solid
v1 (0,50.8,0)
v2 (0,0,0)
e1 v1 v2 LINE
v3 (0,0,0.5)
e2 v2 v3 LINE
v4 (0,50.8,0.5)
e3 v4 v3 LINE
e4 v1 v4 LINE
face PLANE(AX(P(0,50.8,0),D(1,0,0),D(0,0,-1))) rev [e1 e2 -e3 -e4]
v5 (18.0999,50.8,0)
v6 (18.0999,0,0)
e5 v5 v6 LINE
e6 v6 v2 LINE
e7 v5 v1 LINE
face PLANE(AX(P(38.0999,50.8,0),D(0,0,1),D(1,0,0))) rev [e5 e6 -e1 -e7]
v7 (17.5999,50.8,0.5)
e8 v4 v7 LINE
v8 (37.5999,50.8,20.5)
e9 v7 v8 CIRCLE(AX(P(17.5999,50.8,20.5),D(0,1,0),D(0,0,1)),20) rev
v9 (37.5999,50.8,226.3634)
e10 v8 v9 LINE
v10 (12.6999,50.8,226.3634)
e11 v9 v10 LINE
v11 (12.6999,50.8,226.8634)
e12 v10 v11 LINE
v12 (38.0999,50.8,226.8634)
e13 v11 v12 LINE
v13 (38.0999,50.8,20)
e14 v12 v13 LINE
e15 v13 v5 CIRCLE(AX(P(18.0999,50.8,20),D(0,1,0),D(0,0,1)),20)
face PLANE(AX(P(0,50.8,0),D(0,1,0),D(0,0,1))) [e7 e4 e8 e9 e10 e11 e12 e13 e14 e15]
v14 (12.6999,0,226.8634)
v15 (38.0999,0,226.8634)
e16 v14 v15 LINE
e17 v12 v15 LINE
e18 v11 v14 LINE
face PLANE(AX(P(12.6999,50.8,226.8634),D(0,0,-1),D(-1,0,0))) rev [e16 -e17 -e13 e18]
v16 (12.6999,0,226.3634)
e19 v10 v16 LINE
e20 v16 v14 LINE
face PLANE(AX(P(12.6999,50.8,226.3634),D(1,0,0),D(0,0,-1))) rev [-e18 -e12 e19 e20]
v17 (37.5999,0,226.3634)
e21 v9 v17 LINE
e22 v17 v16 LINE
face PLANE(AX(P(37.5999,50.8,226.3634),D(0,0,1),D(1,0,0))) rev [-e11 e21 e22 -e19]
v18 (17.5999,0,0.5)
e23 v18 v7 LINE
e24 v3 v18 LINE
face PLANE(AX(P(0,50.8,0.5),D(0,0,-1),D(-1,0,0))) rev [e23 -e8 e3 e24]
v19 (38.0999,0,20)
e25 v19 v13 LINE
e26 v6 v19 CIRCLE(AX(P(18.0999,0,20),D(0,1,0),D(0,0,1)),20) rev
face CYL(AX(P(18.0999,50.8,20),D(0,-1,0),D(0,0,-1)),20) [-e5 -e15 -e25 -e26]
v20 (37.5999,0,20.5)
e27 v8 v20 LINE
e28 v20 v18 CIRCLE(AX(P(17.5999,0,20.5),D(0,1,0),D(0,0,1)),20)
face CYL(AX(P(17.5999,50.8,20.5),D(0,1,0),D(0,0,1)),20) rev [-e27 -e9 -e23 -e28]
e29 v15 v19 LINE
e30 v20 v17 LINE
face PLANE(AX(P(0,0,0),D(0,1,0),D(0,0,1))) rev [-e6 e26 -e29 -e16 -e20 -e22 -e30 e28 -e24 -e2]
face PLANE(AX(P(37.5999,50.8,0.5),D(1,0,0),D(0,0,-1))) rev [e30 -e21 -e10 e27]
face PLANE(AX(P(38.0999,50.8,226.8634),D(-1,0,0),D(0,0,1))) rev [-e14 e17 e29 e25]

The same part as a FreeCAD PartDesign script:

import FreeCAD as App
import Part
import Sketcher
Q = App.Units.Quantity


def edges_at(feature, points):
    """Names of the edges that pass closest to the given points."""
    edges = feature.Shape.Edges
    near = lambda p: min(range(len(edges)), key=lambda i: edges[i].distToShape(Part.Vertex(*p))[0])
    return sorted({f"Edge{near(p) + 1}" for p in points})


def add_polygon(sketch, points):
    """Adds a closed chain of lines whose ends are joined by coincident constraints."""
    first, n = sketch.GeometryCount, len(points)
    for a, b in zip(points, points[1:] + points[:1]):
        sketch.addGeometry(Part.LineSegment(App.Vector(*a, 0), App.Vector(*b, 0)), False)
    for i in range(n):
        sketch.addConstraint(Sketcher.Constraint("Coincident", first + i, 2, first + (i + 1) % n, 1))

doc = App.newDocument("Part")
params = doc.addObject("Spreadsheet::Sheet", "Params")
for row, (alias, value) in enumerate([
    ("sketch1_width", "24.9 mm"),
    ("sketch1_width2", "25.4 mm"),
    ("sketch1_height", "0.5 mm"),
    ("pad1_length", "50.8 mm"),
    ("fillet_radius", "20 mm"),
], start=1):
    params.set(f"A{row}", alias)
    params.set(f"B{row}", "=" + value)
    params.setAlias(f"B{row}", alias)

body = doc.addObject("PartDesign::Body", "Body")

# Sketch on XZ plane
sketch1 = body.newObject("Sketcher::SketchObject", "Sketch")
sketch1.AttachmentSupport = (doc.getObject("XZ_Plane"), [""])
sketch1.MapMode = "FlatFace"
add_polygon(sketch1, [(0, 0), (0, 0.5), (37.5999, 0.5), (37.5999, 226.3634), (12.6999, 226.3634), (12.6999, 226.8634), (38.0999, 226.8634), (38.0999, 0)])  # lines 0-7
sketch1.addConstraint([
    Sketcher.Constraint("Vertical", 0),
    Sketcher.Constraint("Horizontal", 1),
    Sketcher.Constraint("Vertical", 2),
    Sketcher.Constraint("Horizontal", 3),
    Sketcher.Constraint("Vertical", 4),
    Sketcher.Constraint("Horizontal", 5),
    Sketcher.Constraint("Vertical", 6),
    Sketcher.Constraint("Horizontal", 7),
    Sketcher.Constraint("Coincident", 7, 2, -1, 1),
    Sketcher.Constraint("Equal", 0, 4),
    Sketcher.Constraint("DistanceX", 3, 2, 3, 1, Q("24.9 mm")),
    Sketcher.Constraint("DistanceX", 5, 1, 5, 2, Q("25.4 mm")),
    Sketcher.Constraint("DistanceY", 0, 1, 0, 2, Q("0.5 mm")),
    Sketcher.Constraint("DistanceX", 1, 1, 1, 2, Q("37.5999 mm")),
    Sketcher.Constraint("DistanceY", 2, 1, 2, 2, Q("225.8634 mm")),
])
sketch1.setExpression("Constraints[18]", "Params.sketch1_width")
sketch1.setExpression("Constraints[19]", "Params.sketch1_width2")
sketch1.setExpression("Constraints[20]", "Params.sketch1_height")
pad1 = body.newObject("PartDesign::Pad", "Pad")
pad1.Profile = sketch1
pad1.setExpression("Length", "Params.pad1_length")
pad1.Reversed = True
doc.recompute()

fillet = body.newObject("PartDesign::Fillet", "Fillet")
fillet.Base = (pad1, edges_at(pad1, [(38.1, 25.4, 0), (37.6, 25.4, 0.5)]))
fillet.setExpression("Radius", "Params.fillet_radius")

doc.recompute()
